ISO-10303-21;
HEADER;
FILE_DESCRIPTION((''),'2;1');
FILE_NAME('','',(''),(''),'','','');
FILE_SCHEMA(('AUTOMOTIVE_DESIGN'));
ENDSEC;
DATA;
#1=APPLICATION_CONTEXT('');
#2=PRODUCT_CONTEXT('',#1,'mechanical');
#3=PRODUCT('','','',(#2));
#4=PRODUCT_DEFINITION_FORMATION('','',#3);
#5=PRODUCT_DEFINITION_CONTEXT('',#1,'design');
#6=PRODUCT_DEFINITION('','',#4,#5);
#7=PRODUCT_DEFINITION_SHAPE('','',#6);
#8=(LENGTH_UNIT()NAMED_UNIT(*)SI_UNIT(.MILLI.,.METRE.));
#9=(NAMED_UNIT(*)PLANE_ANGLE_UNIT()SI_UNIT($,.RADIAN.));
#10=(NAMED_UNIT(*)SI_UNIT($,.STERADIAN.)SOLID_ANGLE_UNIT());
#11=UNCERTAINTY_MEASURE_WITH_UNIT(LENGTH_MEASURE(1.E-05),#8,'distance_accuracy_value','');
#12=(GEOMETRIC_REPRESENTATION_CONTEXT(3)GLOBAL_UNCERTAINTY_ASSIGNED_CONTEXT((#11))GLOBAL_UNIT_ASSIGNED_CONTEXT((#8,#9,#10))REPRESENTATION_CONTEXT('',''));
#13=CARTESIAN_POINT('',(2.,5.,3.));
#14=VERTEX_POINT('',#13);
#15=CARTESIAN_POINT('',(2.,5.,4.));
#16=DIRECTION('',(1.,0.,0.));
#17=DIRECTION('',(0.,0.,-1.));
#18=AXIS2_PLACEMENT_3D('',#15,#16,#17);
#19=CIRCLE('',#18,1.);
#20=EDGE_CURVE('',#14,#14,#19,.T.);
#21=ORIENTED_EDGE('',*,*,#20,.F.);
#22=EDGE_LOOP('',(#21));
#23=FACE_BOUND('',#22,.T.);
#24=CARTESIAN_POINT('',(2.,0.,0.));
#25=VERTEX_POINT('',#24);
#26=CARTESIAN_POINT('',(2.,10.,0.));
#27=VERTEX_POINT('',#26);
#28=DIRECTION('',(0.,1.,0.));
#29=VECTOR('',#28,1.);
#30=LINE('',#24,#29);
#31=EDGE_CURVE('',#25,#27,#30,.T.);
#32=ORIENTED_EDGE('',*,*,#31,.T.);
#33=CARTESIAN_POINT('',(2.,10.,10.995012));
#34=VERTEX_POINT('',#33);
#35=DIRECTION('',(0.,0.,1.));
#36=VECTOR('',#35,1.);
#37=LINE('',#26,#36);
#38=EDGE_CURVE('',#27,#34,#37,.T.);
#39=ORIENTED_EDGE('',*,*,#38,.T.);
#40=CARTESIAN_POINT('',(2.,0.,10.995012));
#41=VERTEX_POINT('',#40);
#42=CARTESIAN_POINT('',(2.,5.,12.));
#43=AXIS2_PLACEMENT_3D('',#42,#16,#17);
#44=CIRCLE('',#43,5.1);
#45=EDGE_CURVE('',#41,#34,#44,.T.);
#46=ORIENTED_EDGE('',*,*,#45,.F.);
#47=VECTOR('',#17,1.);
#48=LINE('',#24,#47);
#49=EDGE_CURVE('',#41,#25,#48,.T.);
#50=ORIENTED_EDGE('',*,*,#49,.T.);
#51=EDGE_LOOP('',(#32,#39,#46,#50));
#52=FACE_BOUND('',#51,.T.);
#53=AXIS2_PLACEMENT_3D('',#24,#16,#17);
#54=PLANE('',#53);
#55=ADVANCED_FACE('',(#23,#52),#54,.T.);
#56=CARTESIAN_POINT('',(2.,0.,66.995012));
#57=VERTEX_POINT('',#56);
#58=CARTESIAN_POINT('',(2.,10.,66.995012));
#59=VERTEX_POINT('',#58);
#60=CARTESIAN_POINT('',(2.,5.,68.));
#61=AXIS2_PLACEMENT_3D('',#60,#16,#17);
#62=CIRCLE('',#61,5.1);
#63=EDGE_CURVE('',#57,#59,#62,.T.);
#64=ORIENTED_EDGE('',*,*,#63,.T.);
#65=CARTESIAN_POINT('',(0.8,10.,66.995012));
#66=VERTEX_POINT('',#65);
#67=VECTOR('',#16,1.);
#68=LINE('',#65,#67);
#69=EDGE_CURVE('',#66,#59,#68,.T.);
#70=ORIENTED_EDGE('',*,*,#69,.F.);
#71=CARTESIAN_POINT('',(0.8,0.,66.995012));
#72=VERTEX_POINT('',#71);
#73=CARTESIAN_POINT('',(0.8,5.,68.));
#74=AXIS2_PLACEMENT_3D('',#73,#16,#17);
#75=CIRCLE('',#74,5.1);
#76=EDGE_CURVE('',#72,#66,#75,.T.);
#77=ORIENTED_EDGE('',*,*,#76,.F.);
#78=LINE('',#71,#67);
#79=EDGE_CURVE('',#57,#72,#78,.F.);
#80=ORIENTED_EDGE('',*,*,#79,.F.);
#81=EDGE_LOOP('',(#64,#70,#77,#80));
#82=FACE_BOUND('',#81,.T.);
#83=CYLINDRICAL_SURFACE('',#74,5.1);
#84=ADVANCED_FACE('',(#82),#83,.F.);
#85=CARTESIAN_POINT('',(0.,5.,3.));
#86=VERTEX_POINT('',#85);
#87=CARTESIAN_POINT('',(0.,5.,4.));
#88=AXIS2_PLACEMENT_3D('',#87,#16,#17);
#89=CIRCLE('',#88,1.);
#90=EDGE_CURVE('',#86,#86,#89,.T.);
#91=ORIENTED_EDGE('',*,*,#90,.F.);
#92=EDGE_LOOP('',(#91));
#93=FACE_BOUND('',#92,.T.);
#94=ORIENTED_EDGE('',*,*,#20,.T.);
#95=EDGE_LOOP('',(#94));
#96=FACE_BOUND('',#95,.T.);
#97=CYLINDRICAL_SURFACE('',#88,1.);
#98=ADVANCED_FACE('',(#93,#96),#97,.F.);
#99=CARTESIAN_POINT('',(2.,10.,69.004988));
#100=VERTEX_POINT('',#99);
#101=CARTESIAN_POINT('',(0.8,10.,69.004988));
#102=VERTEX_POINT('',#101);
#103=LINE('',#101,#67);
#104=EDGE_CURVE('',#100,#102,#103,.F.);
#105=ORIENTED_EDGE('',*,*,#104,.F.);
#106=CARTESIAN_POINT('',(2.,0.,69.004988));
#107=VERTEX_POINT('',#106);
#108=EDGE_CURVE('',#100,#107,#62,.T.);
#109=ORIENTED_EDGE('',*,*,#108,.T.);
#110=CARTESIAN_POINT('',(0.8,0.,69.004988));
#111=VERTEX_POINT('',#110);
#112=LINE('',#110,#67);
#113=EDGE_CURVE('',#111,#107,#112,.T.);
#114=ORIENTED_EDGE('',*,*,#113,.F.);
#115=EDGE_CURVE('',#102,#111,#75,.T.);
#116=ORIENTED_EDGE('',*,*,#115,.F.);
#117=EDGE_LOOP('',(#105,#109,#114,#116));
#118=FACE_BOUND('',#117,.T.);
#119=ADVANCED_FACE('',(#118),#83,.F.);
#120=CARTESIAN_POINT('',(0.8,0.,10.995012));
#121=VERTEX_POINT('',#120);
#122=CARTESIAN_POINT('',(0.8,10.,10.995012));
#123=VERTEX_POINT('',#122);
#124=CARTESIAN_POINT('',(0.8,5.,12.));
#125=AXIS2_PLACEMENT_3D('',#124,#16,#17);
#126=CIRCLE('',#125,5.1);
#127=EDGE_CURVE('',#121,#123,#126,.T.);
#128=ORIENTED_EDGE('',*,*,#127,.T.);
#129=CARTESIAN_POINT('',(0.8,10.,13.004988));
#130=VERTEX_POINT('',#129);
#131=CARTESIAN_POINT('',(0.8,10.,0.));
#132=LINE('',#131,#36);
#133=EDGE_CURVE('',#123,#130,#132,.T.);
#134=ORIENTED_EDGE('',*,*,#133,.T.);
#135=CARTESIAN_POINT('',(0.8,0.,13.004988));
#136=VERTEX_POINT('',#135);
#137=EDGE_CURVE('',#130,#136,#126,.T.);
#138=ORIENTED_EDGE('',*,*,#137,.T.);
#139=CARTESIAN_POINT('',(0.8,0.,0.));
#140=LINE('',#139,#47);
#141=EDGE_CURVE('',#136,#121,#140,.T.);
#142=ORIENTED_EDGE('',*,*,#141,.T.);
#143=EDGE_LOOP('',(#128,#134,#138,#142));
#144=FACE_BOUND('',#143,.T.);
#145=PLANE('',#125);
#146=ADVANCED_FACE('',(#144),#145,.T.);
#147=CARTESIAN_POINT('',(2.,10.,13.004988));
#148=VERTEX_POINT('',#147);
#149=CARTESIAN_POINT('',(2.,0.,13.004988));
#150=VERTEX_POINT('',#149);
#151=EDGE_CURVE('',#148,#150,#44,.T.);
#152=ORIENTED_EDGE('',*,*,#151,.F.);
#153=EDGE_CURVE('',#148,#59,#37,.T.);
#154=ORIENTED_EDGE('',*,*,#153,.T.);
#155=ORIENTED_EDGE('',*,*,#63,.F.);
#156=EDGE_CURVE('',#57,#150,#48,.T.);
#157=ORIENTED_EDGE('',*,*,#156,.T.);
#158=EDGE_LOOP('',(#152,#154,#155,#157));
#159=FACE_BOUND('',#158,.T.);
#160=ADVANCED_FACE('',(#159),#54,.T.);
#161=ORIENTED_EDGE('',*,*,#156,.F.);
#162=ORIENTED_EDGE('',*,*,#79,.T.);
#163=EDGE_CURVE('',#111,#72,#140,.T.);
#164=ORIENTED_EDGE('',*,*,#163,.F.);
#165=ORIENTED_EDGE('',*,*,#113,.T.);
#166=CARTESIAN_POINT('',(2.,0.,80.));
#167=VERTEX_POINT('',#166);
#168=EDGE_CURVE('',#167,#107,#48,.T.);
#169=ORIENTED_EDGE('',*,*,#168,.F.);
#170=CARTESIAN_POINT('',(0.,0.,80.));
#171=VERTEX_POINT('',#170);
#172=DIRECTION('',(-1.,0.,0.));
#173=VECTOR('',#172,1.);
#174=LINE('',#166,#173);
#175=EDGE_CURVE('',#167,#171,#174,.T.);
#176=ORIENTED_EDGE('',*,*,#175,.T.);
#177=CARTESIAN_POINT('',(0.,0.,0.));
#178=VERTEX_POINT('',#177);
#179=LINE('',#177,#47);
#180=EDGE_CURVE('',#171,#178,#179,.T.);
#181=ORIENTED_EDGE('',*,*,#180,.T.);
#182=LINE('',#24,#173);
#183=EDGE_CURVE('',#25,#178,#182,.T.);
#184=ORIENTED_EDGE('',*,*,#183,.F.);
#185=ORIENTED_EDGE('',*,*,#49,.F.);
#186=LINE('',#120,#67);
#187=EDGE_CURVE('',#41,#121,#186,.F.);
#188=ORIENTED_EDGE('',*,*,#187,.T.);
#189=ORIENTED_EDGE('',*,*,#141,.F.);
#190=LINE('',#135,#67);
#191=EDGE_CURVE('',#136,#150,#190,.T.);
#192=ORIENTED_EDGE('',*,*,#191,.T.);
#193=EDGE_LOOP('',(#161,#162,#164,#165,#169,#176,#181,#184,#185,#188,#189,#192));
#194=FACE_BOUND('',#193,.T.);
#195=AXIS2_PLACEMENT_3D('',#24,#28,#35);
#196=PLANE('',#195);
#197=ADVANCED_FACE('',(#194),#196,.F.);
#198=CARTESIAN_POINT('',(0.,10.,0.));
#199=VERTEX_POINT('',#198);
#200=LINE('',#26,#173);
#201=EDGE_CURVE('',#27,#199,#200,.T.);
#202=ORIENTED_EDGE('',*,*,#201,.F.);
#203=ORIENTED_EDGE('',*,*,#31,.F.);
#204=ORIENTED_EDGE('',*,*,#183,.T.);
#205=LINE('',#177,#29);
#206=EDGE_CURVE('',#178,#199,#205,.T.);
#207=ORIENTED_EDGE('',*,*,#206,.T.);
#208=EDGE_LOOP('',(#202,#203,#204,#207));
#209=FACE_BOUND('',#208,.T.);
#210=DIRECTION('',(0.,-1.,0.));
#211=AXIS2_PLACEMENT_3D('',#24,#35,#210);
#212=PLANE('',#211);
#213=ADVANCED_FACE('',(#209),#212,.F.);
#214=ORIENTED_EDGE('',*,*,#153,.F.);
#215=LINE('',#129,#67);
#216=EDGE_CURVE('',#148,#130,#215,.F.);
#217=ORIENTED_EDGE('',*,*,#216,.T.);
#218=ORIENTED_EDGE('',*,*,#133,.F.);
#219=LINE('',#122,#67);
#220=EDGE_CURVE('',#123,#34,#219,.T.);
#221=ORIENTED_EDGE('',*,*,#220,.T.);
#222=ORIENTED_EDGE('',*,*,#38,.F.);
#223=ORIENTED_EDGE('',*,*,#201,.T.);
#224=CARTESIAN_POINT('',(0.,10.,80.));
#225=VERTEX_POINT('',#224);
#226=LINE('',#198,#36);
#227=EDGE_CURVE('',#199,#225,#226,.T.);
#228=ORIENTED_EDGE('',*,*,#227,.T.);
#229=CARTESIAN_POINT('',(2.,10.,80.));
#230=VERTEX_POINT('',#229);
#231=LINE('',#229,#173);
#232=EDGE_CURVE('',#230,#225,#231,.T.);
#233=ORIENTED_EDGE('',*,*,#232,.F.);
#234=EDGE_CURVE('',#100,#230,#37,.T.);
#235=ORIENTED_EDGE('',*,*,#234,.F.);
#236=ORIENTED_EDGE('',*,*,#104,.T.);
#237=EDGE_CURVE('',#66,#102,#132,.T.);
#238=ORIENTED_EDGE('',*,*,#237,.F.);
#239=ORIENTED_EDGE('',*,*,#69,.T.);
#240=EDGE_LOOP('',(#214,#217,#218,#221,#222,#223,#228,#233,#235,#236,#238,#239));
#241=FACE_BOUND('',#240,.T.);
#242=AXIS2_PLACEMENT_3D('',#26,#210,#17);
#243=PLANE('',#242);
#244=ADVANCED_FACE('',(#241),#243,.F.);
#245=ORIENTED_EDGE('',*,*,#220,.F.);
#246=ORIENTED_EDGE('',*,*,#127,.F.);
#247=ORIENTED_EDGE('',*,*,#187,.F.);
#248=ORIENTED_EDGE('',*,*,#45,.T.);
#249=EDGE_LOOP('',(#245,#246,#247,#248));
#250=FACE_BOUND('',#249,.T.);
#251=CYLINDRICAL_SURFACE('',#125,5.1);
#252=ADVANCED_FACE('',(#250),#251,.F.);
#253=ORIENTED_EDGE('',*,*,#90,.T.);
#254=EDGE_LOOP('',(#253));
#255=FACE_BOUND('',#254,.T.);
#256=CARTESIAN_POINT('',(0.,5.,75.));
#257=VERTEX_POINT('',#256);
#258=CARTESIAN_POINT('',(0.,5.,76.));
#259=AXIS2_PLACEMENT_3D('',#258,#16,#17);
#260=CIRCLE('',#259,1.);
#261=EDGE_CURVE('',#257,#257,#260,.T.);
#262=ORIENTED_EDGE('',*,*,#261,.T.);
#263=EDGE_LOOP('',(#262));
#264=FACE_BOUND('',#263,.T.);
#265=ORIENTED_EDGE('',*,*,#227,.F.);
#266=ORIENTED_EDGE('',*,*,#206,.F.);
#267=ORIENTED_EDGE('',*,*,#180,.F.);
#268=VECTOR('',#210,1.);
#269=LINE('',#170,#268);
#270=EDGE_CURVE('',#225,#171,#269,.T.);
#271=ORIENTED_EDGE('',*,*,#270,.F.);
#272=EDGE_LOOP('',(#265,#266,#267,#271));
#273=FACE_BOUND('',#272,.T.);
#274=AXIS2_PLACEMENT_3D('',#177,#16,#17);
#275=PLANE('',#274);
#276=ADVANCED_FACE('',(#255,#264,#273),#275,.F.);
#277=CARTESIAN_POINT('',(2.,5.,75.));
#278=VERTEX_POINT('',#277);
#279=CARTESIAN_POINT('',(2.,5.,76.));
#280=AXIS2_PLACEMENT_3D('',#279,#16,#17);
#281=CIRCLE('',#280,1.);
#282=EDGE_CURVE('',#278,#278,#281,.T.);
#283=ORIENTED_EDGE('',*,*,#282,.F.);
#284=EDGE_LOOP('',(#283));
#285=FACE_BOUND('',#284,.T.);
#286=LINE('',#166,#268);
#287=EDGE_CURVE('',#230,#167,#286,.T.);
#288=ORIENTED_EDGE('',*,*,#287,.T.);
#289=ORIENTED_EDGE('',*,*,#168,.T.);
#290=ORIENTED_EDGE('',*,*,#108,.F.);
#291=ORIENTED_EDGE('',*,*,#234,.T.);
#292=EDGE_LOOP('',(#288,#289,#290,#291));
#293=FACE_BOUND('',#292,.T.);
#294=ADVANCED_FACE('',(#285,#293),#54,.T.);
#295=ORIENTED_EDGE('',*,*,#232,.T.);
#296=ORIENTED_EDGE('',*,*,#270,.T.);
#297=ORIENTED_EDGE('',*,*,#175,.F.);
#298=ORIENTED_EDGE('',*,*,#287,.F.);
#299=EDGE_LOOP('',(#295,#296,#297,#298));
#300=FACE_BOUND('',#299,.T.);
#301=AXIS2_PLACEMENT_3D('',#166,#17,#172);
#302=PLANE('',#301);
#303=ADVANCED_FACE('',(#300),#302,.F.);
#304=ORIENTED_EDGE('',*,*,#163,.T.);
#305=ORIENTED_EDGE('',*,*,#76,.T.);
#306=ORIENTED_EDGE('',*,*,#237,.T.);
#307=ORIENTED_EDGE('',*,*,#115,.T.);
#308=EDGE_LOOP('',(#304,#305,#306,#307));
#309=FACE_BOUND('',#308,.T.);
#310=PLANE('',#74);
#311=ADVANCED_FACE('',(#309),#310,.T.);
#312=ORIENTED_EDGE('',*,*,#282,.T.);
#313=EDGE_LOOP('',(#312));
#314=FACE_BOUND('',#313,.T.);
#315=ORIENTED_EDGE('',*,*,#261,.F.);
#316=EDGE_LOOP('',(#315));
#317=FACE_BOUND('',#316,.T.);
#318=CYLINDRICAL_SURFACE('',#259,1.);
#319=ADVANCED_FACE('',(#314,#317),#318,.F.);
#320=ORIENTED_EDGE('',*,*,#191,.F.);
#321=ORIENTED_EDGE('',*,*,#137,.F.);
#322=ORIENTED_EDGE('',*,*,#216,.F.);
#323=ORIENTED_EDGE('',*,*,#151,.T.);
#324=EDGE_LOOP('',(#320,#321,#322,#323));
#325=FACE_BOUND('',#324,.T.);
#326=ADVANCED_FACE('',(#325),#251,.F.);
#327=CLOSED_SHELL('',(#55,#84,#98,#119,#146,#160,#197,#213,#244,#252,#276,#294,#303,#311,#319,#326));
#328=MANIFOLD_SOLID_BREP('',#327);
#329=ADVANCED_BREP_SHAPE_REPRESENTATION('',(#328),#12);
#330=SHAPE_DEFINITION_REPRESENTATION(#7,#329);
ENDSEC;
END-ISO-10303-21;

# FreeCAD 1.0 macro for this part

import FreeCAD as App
import Part
import Sketcher

V = App.Vector

doc = App.newDocument("Part")
params = doc.addObject("Spreadsheet::Sheet", "Params")
for row, (alias, value) in enumerate([
    ("sketch1_width", "10 mm"),
    ("sketch1_height", "80 mm"),
    ("pad1_length", "2 mm"),
    ("sketch2_diameter", "2 mm"),
    ("pocket1_length", "2 mm"),
    ("sketch3_diameter", "10.2 mm"),
    ("pocket2_length", "1.2 mm"),
], start=1):
    params.set(f"A{row}", alias)
    params.set(f"B{row}", "=" + value)
    params.setAlias(f"B{row}", alias)

body = doc.addObject("PartDesign::Body", "Body")

sketch1 = doc.addObject("Sketcher::SketchObject", "Sketch")
body.addObject(sketch1)
sketch1.AttachmentSupport = (doc.YZ_Plane, [""])
sketch1.MapMode = "FlatFace"
sketch1.addGeometry(Part.LineSegment(V(10, 80, 0), V(0, 80, 0)), False)
sketch1.addGeometry(Part.LineSegment(V(0, 80, 0), V(0, 0, 0)), False)
sketch1.addGeometry(Part.LineSegment(V(0, 0, 0), V(10, 0, 0)), False)
sketch1.addGeometry(Part.LineSegment(V(10, 0, 0), V(10, 80, 0)), False)
sketch1.addConstraint(Sketcher.Constraint("Coincident", 0, 2, 1, 1))
sketch1.addConstraint(Sketcher.Constraint("Coincident", 1, 2, 2, 1))
sketch1.addConstraint(Sketcher.Constraint("Coincident", 2, 2, 3, 1))
sketch1.addConstraint(Sketcher.Constraint("Coincident", 3, 2, 0, 1))
sketch1.addConstraint(Sketcher.Constraint("Horizontal", 0))
sketch1.addConstraint(Sketcher.Constraint("Vertical", 1))
sketch1.addConstraint(Sketcher.Constraint("Horizontal", 2))
sketch1.addConstraint(Sketcher.Constraint("Vertical", 3))
sketch1.addConstraint(Sketcher.Constraint("Coincident", 1, 2, -1, 1))
sketch1.addConstraint(Sketcher.Constraint("DistanceX", 0, 2, 0, 1, 10.0))
sketch1.addConstraint(Sketcher.Constraint("DistanceY", 1, 2, 1, 1, 80.0))
sketch1.setExpression("Constraints[9]", "Params.sketch1_width")
sketch1.setExpression("Constraints[10]", "Params.sketch1_height")
pad1 = doc.addObject("PartDesign::Pad", "Pad")
body.addObject(pad1)
pad1.Profile = sketch1
pad1.setExpression("Length", "Params.pad1_length")

sketch2 = doc.addObject("Sketcher::SketchObject", "Sketch001")
body.addObject(sketch2)
sketch2.AttachmentSupport = (doc.YZ_Plane, [""])
sketch2.MapMode = "FlatFace"
sketch2.AttachmentOffset = App.Placement(V(0, 0, 2), App.Rotation())
sketch2.addGeometry(Part.Circle(V(5, 76, 0), V(0, 0, 1), 1), False)
sketch2.addGeometry(Part.Circle(V(5, 4, 0), V(0, 0, 1), 1), False)
sketch2.addConstraint(Sketcher.Constraint("Equal", 0, 1))
sketch2.addConstraint(Sketcher.Constraint("Vertical", 0, 3, 1, 3))
sketch2.addConstraint(Sketcher.Constraint("Diameter", 0, 2.0))
sketch2.addConstraint(Sketcher.Constraint("DistanceX", -1, 1, 0, 3, 5.0))
sketch2.addConstraint(Sketcher.Constraint("DistanceY", -1, 1, 0, 3, 76.0))
sketch2.addConstraint(Sketcher.Constraint("DistanceY", -1, 1, 1, 3, 4.0))
sketch2.setExpression("Constraints[2]", "Params.sketch2_diameter")
pocket1 = doc.addObject("PartDesign::Pocket", "Pocket")
body.addObject(pocket1)
pocket1.Profile = sketch2
pocket1.setExpression("Length", "Params.pocket1_length")

sketch3 = doc.addObject("Sketcher::SketchObject", "Sketch002")
body.addObject(sketch3)
sketch3.AttachmentSupport = (doc.YZ_Plane, [""])
sketch3.MapMode = "FlatFace"
sketch3.AttachmentOffset = App.Placement(V(0, 0, 2), App.Rotation())
sketch3.addGeometry(Part.Circle(V(5, 68, 0), V(0, 0, 1), 5.1), False)
sketch3.addGeometry(Part.Circle(V(5, 12, 0), V(0, 0, 1), 5.1), False)
sketch3.addConstraint(Sketcher.Constraint("Equal", 0, 1))
sketch3.addConstraint(Sketcher.Constraint("Vertical", 0, 3, 1, 3))
sketch3.addConstraint(Sketcher.Constraint("Diameter", 0, 10.2))
sketch3.addConstraint(Sketcher.Constraint("DistanceX", -1, 1, 0, 3, 5.0))
sketch3.addConstraint(Sketcher.Constraint("DistanceY", -1, 1, 0, 3, 68.0))
sketch3.addConstraint(Sketcher.Constraint("DistanceY", -1, 1, 1, 3, 12.0))
sketch3.setExpression("Constraints[2]", "Params.sketch3_diameter")
pocket2 = doc.addObject("PartDesign::Pocket", "Pocket001")
body.addObject(pocket2)
pocket2.Profile = sketch3
pocket2.setExpression("Length", "Params.pocket2_length")

doc.recompute()
